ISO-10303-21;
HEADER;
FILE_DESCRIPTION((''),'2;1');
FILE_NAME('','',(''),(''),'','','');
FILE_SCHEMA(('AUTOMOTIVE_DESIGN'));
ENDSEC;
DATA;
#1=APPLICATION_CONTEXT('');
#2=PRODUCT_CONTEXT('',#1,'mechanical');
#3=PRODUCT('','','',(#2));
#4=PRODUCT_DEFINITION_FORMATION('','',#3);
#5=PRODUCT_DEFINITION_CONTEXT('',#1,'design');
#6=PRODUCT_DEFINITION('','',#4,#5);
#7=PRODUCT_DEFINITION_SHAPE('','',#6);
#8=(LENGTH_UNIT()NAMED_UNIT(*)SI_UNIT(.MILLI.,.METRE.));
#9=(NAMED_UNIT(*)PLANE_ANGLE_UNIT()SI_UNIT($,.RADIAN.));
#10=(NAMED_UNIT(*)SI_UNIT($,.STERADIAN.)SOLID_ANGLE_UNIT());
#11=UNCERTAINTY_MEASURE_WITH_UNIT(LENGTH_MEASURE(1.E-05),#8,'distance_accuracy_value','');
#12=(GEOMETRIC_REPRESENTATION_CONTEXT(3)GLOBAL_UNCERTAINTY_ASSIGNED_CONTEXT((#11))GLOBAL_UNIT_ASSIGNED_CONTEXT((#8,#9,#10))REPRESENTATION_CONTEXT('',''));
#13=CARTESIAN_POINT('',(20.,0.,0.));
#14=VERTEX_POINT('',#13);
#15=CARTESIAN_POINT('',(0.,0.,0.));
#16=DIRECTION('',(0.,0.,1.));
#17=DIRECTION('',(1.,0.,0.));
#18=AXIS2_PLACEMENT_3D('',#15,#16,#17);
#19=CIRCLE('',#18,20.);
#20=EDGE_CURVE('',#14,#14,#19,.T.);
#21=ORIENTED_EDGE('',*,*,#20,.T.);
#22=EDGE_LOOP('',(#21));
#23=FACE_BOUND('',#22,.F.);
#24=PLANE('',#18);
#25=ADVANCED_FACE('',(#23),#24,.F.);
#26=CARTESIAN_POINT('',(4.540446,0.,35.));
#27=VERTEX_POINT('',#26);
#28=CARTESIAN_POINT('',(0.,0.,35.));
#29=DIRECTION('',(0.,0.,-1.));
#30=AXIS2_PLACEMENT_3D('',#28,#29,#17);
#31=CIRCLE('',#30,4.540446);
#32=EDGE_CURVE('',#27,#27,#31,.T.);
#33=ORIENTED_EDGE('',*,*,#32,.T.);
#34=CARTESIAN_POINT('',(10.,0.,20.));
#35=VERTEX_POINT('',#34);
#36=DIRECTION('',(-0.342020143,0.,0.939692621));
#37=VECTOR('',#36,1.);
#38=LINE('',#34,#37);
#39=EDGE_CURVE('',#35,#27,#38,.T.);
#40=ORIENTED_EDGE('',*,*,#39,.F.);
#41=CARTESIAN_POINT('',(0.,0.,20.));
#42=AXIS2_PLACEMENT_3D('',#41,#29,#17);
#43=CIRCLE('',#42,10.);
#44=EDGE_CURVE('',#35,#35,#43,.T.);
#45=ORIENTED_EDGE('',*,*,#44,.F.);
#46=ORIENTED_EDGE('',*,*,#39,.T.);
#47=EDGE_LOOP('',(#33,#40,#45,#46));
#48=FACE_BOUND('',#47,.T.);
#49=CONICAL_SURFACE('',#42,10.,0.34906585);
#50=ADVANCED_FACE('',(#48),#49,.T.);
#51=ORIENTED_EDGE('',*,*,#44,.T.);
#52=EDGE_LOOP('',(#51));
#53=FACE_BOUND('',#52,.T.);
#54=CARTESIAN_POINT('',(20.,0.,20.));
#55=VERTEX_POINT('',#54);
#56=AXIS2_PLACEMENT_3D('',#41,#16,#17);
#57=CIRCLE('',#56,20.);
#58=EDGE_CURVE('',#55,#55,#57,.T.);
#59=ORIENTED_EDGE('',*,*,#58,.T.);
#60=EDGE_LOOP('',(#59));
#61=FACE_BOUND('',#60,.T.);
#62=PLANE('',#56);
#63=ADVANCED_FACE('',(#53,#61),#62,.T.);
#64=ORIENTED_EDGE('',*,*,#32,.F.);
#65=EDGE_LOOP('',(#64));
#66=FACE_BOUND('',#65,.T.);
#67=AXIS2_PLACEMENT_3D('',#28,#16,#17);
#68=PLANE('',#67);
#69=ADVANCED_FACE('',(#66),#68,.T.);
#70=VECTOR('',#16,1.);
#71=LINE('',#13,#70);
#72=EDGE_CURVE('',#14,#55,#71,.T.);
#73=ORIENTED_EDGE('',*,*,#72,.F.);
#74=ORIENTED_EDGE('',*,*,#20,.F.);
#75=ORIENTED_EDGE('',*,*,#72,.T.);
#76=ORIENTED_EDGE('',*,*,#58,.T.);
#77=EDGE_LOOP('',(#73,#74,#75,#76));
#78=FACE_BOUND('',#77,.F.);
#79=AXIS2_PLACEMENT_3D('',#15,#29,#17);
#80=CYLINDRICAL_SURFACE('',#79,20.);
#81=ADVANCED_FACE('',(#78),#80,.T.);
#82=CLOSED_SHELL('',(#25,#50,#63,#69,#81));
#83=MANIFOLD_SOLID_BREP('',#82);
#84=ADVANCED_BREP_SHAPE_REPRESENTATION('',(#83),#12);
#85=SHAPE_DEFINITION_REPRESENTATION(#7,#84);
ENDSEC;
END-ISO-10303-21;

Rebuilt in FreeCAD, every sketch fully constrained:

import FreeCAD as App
import Part
import Sketcher

V = App.Vector
Q = App.Units.Quantity

doc = App.newDocument("Part")
params = doc.addObject("Spreadsheet::Sheet", "Params")
for row, (alias, value) in enumerate([
    ("sketch1_diameter", "40 mm"),
    ("pad1_length", "20 mm"),
    ("sketch2_diameter", "20 mm"),
    ("pad2_length", "15 mm"),
    ("pad2_taper", "-20 deg"),
], start=1):
    params.set(f"A{row}", alias)
    params.set(f"B{row}", "=" + value)
    params.setAlias(f"B{row}", alias)

body = doc.addObject("PartDesign::Body", "Body")

sketch1 = body.newObject("Sketcher::SketchObject", "Sketch")
sketch1.AttachmentSupport = (doc.getObject("XY_Plane"), [""])
sketch1.MapMode = "FlatFace"
sketch1.addGeometry(Part.Circle(V(0, 0, 0), V(0, 0, 1), 20), False)
sketch1.addConstraint(Sketcher.Constraint("Coincident", 0, 3, -1, 1))
sketch1.addConstraint(Sketcher.Constraint("Diameter", 0, Q("40 mm")))
sketch1.setExpression("Constraints[1]", "Params.sketch1_diameter")
pad1 = body.newObject("PartDesign::Pad", "Pad")
pad1.Profile = sketch1
pad1.setExpression("Length", "Params.pad1_length")

sketch2 = body.newObject("Sketcher::SketchObject", "Sketch001")
sketch2.AttachmentSupport = (doc.getObject("XY_Plane"), [""])
sketch2.MapMode = "FlatFace"
sketch2.AttachmentOffset = App.Placement(V(0, 0, 20), App.Rotation())
sketch2.addGeometry(Part.Circle(V(0, 0, 0), V(0, 0, 1), 10), False)
sketch2.addConstraint(Sketcher.Constraint("Coincident", 0, 3, -1, 1))
sketch2.addConstraint(Sketcher.Constraint("Diameter", 0, Q("20 mm")))
sketch2.setExpression("Constraints[1]", "Params.sketch2_diameter")
pad2 = body.newObject("PartDesign::Pad", "Pad001")
pad2.Profile = sketch2
pad2.setExpression("Length", "Params.pad2_length")
pad2.setExpression("TaperAngle", "Params.pad2_taper")

doc.recompute()
